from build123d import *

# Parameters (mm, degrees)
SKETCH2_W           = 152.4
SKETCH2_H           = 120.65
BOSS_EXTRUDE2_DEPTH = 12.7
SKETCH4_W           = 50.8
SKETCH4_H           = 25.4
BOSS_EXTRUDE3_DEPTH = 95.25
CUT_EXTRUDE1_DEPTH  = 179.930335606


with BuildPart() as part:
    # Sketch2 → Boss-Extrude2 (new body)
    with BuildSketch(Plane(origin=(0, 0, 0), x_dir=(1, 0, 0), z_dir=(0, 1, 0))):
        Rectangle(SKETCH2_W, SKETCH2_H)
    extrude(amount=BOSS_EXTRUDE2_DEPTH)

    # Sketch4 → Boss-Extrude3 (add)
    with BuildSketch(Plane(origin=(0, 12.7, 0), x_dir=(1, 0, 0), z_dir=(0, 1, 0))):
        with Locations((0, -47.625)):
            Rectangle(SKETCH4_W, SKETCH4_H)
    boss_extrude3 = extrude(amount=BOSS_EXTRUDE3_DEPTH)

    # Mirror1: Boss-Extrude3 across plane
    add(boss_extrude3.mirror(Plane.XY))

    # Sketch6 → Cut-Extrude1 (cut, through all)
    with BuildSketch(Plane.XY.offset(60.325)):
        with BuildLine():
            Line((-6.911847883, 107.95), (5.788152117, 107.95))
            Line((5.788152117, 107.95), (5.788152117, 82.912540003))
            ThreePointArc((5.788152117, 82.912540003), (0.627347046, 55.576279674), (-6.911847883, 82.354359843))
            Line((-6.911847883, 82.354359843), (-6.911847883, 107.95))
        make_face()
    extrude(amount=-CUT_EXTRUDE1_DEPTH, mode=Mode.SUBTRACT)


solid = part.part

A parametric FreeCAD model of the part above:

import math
import FreeCAD as App
import Part
import Sketcher

V = App.Vector
Q = App.Units.Quantity


def add_polygon(sketch, points):
    """Adds a closed chain of lines whose ends are joined by coincident constraints."""
    first, n = sketch.GeometryCount, len(points)
    for a, b in zip(points, points[1:] + points[:1]):
        sketch.addGeometry(Part.LineSegment(App.Vector(*a, 0), App.Vector(*b, 0)), False)
    for i in range(n):
        sketch.addConstraint(Sketcher.Constraint("Coincident", first + i, 2, first + (i + 1) % n, 1))

doc = App.newDocument("Part")
params = doc.addObject("Spreadsheet::Sheet", "Params")
for row, (alias, value) in enumerate([
    ("sketch1_width", "6 in"),
    ("sketch1_height", "4.75 in"),
    ("pad1_length", "0.5 in"),
    ("sketch2_width", "2 in"),
    ("sketch2_height", "1 in"),
    ("pad2_length", "3.75 in"),
    ("sketch3_width", "0.5 in"),
    ("sketch3_radius", "0.5625 in"),
], start=1):
    params.set(f"A{row}", alias)
    params.set(f"B{row}", "=" + value)
    params.setAlias(f"B{row}", alias)

body = doc.addObject("PartDesign::Body", "Body")

# Sketch on XZ plane
sketch1 = body.newObject("Sketcher::SketchObject", "Sketch")
sketch1.AttachmentSupport = (doc.getObject("XZ_Plane"), [""])
sketch1.MapMode = "FlatFace"
add_polygon(sketch1, [(-76.2, -60.325), (-76.2, 60.325), (76.2, 60.325), (76.2, -60.325)])  # lines 0-3
sketch1.addConstraint([
    Sketcher.Constraint("Vertical", 0),
    Sketcher.Constraint("Horizontal", 1),
    Sketcher.Constraint("Vertical", 2),
    Sketcher.Constraint("Horizontal", 3),
    Sketcher.Constraint("Symmetric", 0, 2, 2, 2, -1, 1),
    Sketcher.Constraint("DistanceX", 1, 1, 1, 2, Q("6 in")),
    Sketcher.Constraint("DistanceY", 0, 1, 0, 2, Q("4.75 in")),
])
sketch1.setExpression("Constraints[9]", "Params.sketch1_width")
sketch1.setExpression("Constraints[10]", "Params.sketch1_height")
pad1 = body.newObject("PartDesign::Pad", "Pad")
pad1.Profile = sketch1
pad1.setExpression("Length", "Params.pad1_length")
pad1.Reversed = True

# Sketch on XZ plane
sketch2 = body.newObject("Sketcher::SketchObject", "Sketch001")
sketch2.AttachmentSupport = (doc.getObject("XZ_Plane"), [""])
sketch2.MapMode = "FlatFace"
sketch2.AttachmentOffset = App.Placement(V(0, 0, -0.5 * 25.4), App.Rotation())
add_polygon(sketch2, [(-25.4, 34.925), (-25.4, 60.325), (25.4, 60.325), (25.4, 34.925)])  # lines 0-3
sketch2.addConstraint([
    Sketcher.Constraint("Vertical", 0),
    Sketcher.Constraint("Horizontal", 1),
    Sketcher.Constraint("Vertical", 2),
    Sketcher.Constraint("Horizontal", 3),
    Sketcher.Constraint("DistanceX", 1, 1, 1, 2, Q("2 in")),
    Sketcher.Constraint("DistanceY", 0, 1, 0, 2, Q("1 in")),
    Sketcher.Constraint("DistanceX", 0, 2, -1, 1, Q("1 in")),
    Sketcher.Constraint("DistanceY", -1, 1, 0, 2, Q("2.375 in")),
])
sketch2.setExpression("Constraints[8]", "Params.sketch2_width")
sketch2.setExpression("Constraints[9]", "Params.sketch2_height")
pad2 = body.newObject("PartDesign::Pad", "Pad001")
pad2.Profile = sketch2
pad2.setExpression("Length", "Params.pad2_length")
pad2.Reversed = True
doc.recompute()

mirrored = body.newObject("PartDesign::Mirrored", "Mirrored")
mirrored.Originals = [pad2]
mirrored.MirrorPlane = (doc.getObject("XY_Plane"), [""])
body.Tip = mirrored

# Sketch on XY plane
sketch3 = body.newObject("Sketcher::SketchObject", "Sketch002")
sketch3.AttachmentSupport = (doc.getObject("XY_Plane"), [""])
sketch3.MapMode = "FlatFace"
sketch3.AttachmentOffset = App.Placement(V(0, 0, 2.375 * 25.4), App.Rotation())
sketch3.addGeometry([
    Part.LineSegment(V(5.788152, 107.95, 0), V(-6.911848, 107.95, 0)),
    Part.LineSegment(V(-6.911848, 107.95, 0), V(-6.911848, 82.35436, 0)),
    Part.ArcOfCircle(Part.Circle(V(0, 69.85, 0), V(0, 0, 1), 14.2875), math.radians(118.931844), math.radians(426.101352)),
    Part.LineSegment(V(5.788152, 82.91254, 0), V(5.788152, 107.95, 0)),
], False)
sketch3.addConstraint([
    Sketcher.Constraint("Coincident", 0, 2, 1, 1),
    Sketcher.Constraint("Coincident", 1, 2, 2, 1),
    Sketcher.Constraint("Coincident", 2, 2, 3, 1),
    Sketcher.Constraint("Coincident", 3, 2, 0, 1),
    Sketcher.Constraint("Horizontal", 0),
    Sketcher.Constraint("Vertical", 1),
    Sketcher.Constraint("Vertical", 3),
    Sketcher.Constraint("PointOnObject", 2, 3, -2),
    Sketcher.Constraint("DistanceX", 0, 2, 0, 1, Q("0.5 in")),
    Sketcher.Constraint("Radius", 2, Q("0.5625 in")),
    Sketcher.Constraint("DistanceY", 2, 3, 0, 2, Q("1.5 in")),
    Sketcher.Constraint("DistanceY", -1, 1, 2, 3, Q("2.75 in")),
    Sketcher.Constraint("DistanceY", 1, 2, 1, 1, 25.59564),
])
sketch3.setExpression("Constraints[8]", "Params.sketch3_width")
sketch3.setExpression("Constraints[9]", "Params.sketch3_radius")
pocket1 = body.newObject("PartDesign::Pocket", "Pocket")
pocket1.Profile = sketch3
pocket1.Type = "ThroughAll"

doc.recompute()
